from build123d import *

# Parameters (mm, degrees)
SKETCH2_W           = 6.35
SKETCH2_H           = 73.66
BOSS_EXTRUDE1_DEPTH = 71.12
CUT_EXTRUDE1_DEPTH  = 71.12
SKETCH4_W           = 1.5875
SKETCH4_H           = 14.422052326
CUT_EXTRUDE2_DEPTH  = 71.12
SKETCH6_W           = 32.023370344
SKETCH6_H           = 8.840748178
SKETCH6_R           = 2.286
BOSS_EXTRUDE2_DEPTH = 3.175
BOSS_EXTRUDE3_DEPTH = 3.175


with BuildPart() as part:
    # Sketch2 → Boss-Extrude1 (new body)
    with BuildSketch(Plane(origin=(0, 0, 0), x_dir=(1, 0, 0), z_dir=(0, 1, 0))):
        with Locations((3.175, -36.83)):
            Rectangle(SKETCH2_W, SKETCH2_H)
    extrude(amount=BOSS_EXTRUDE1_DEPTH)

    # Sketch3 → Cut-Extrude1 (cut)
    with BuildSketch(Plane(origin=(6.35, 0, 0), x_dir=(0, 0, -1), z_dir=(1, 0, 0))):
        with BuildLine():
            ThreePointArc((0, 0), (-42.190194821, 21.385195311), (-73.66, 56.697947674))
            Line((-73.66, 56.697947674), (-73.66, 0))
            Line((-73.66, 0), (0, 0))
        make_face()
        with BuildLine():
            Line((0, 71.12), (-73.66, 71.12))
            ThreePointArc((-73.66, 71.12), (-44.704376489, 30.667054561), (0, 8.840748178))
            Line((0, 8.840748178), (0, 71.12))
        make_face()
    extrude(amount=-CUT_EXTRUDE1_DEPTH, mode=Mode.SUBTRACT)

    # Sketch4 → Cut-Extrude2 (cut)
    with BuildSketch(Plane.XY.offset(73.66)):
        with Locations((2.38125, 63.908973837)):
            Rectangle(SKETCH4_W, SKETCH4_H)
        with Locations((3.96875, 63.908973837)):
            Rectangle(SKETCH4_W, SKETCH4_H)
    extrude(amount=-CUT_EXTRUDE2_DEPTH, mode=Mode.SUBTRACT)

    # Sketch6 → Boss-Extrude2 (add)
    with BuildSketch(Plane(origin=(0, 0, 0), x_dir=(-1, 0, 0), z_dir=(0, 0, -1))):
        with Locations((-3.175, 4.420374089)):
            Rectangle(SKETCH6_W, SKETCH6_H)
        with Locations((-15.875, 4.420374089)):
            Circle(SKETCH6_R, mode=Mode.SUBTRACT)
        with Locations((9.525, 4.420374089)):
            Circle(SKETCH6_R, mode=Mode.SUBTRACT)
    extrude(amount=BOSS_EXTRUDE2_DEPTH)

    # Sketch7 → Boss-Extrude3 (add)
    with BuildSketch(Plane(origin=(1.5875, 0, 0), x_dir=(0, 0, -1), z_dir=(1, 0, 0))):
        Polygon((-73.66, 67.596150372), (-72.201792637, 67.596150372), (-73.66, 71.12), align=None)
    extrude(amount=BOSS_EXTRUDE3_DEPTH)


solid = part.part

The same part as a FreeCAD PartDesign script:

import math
import FreeCAD as App
import Part
import Sketcher

V = App.Vector
Q = App.Units.Quantity


def add_polygon(sketch, points):
    """Adds a closed chain of lines whose ends are joined by coincident constraints."""
    first, n = sketch.GeometryCount, len(points)
    for a, b in zip(points, points[1:] + points[:1]):
        sketch.addGeometry(Part.LineSegment(App.Vector(*a, 0), App.Vector(*b, 0)), False)
    for i in range(n):
        sketch.addConstraint(Sketcher.Constraint("Coincident", first + i, 2, first + (i + 1) % n, 1))

doc = App.newDocument("Part")
body = doc.addObject("PartDesign::Body", "Body")

sketch1 = body.newObject("Sketcher::SketchObject", "Sketch")
sketch1.AttachmentSupport = (doc.getObject("XZ_Plane"), [""])
sketch1.MapMode = "FlatFace"
add_polygon(sketch1, [(0, 0), (0, 73.66), (6.35, 73.66), (6.35, 0)])
sketch1.addConstraint([
    Sketcher.Constraint("Vertical", 0),
    Sketcher.Constraint("Horizontal", 1),
    Sketcher.Constraint("Vertical", 2),
    Sketcher.Constraint("Horizontal", 3),
    Sketcher.Constraint("Coincident", 3, 2, -1, 1),
    Sketcher.Constraint("DistanceY", 0, 1, 0, 2, Q("2.9 in")),
    Sketcher.Constraint("DistanceX", 1, 1, 1, 2, Q("0.25 in")),
])
pad1 = body.newObject("PartDesign::Pad", "Pad")
pad1.Profile = sketch1
pad1.Length = Q("2.8 in")
pad1.Reversed = True

sketch2 = body.newObject("Sketcher::SketchObject", "Sketch001")
sketch2.AttachmentSupport = (doc.getObject("YZ_Plane"), [""])
sketch2.MapMode = "FlatFace"
sketch2.AttachmentOffset = App.Placement(V(0, 0, 0.25 * 25.4), App.Rotation())
sketch2.addGeometry([
    Part.ArcOfCircle(Part.Circle(V(122.260252, -35.455864, 0), V(0, 0, 1), 127.297634), math.radians(120.999567), math.radians(163.827672)),
    Part.LineSegment(V(56.697948, 73.66, 0), V(0, 73.66, 0)),
    Part.LineSegment(V(0, 73.66, 0), V(0, 0, 0)),
    Part.LineSegment(V(71.12, 0, 0), V(71.12, 73.66, 0)),
    Part.ArcOfCircle(Part.Circle(V(108.146777, -20.804436, 0), V(0, 0, 1), 101.461874), math.radians(111.403454), math.radians(168.167759)),
    Part.LineSegment(V(8.840748, 0, 0), V(71.12, 0, 0)),
], False)
sketch2.addConstraint([
    Sketcher.Constraint("Coincident", 0, 1, 1, 1),
    Sketcher.Constraint("Coincident", 1, 2, 2, 1),
    Sketcher.Constraint("Coincident", 2, 2, 0, 2),
    Sketcher.Constraint("Coincident", 3, 2, 4, 1),
    Sketcher.Constraint("Coincident", 4, 2, 5, 1),
    Sketcher.Constraint("Coincident", 5, 2, 3, 1),
    Sketcher.Constraint("Horizontal", 1),
    Sketcher.Constraint("Vertical", 2),
    Sketcher.Constraint("Vertical", 3),
    Sketcher.Constraint("Horizontal", 5),
    Sketcher.Constraint("Coincident", 2, 2, -1, 1),
    Sketcher.Constraint("PointOnObject", 4, 2, -1),
    Sketcher.Constraint("Horizontal", 1, 2, 3, 2),
    Sketcher.Constraint("DistanceY", 2, 2, 2, 1, Q("2.9 in")),
    Sketcher.Constraint("DistanceX", -1, 1, 3, 2, Q("2.8 in")),
    Sketcher.Constraint("DistanceY", 0, 3, -1, 1, Q("1.3959002 in")),
    Sketcher.Constraint("Radius", 0, Q("127.297634 mm")),
    Sketcher.Constraint("Radius", 4, Q("101.461874 mm")),
    Sketcher.Constraint("DistanceX", 5, 1, 5, 2, Q("62.279252 mm")),
])
pocket1 = body.newObject("PartDesign::Pocket", "Pocket")
pocket1.Profile = sketch2
pocket1.Length = Q("2.8 in")

sketch3 = body.newObject("Sketcher::SketchObject", "Sketch002")
sketch3.AttachmentSupport = (doc.getObject("XY_Plane"), [""])
sketch3.MapMode = "FlatFace"
sketch3.AttachmentOffset = App.Placement(V(0, 0, 2.9 * 25.4), App.Rotation())
add_polygon(sketch3, [(1.5875, 71.12), (1.5875, 56.697948), (4.7625, 56.697948), (4.7625, 71.12)])
sketch3.addConstraint([
    Sketcher.Constraint("Vertical", 0),
    Sketcher.Constraint("Horizontal", 1),
    Sketcher.Constraint("Vertical", 2),
    Sketcher.Constraint("Horizontal", 3),
    Sketcher.Constraint("DistanceY", -1, 1, 2, 2, Q("2.8 in")),
    Sketcher.Constraint("DistanceX", 1, 1, 1, 2, Q("0.125 in")),
    Sketcher.Constraint("DistanceX", -1, 1, 0, 2, Q("0.0625 in")),
    Sketcher.Constraint("DistanceY", 0, 2, 0, 1, Q("14.422052 mm")),
])
pocket2 = body.newObject("PartDesign::Pocket", "Pocket001")
pocket2.Profile = sketch3
pocket2.Length = Q("2.8 in")

sketch4 = body.newObject("Sketcher::SketchObject", "Sketch003")
sketch4.AttachmentSupport = (doc.getObject("XY_Plane"), [""])
sketch4.MapMode = "FlatFace"
add_polygon(sketch4, [(19.186685, 8.840748), (19.186685, 0), (-12.836685, 0), (-12.836685, 8.840748)])
sketch4.addGeometry(Part.Circle(V(15.875, 4.420374, 0), V(0, 0, 1), 2.286), False)
sketch4.addGeometry(Part.Circle(V(-9.525, 4.420374, 0), V(0, 0, 1), 2.286), False)
sketch4.addConstraint([
    Sketcher.Constraint("Vertical", 0),
    Sketcher.Constraint("Horizontal", 1),
    Sketcher.Constraint("Vertical", 2),
    Sketcher.Constraint("Horizontal", 3),
    Sketcher.Constraint("Equal", 4, 5),
    Sketcher.Constraint("PointOnObject", 0, 2, -1),
    Sketcher.Constraint("Horizontal", 4, 3, 5, 3),
    Sketcher.Constraint("Diameter", 4, Q("0.18 in")),
    Sketcher.Constraint("DistanceX", 5, 3, 4, 3, Q("1 in")),
    Sketcher.Constraint("DistanceX", -1, 1, 4, 3, Q("0.625 in")),
    Sketcher.Constraint("DistanceX", 1, 2, 1, 1, Q("32.02337 mm")),
    Sketcher.Constraint("DistanceY", 0, 2, 0, 1, Q("8.840748 mm")),
    Sketcher.Constraint("DistanceY", -1, 1, 4, 3, Q("4.420374 mm")),
    Sketcher.Constraint("DistanceX", -1, 1, 0, 2, Q("19.186685 mm")),
])
pad2 = body.newObject("PartDesign::Pad", "Pad001")
pad2.Profile = sketch4
pad2.Length = Q("0.125 in")
pad2.Reversed = True

sketch5 = body.newObject("Sketcher::SketchObject", "Sketch004")
sketch5.AttachmentSupport = (doc.getObject("YZ_Plane"), [""])
sketch5.MapMode = "FlatFace"
sketch5.AttachmentOffset = App.Placement(V(0, 0, 0.0625 * 25.4), App.Rotation())
add_polygon(sketch5, [(67.59615, 73.66), (67.59615, 72.201793), (71.12, 73.66)])
sketch5.addConstraint([
    Sketcher.Constraint("Vertical", 0),
    Sketcher.Constraint("Horizontal", 2),
    Sketcher.Constraint("DistanceX", -1, 1, 1, 2, Q("2.8 in")),
    Sketcher.Constraint("DistanceY", -1, 1, 1, 2, Q("2.9 in")),
    Sketcher.Constraint("DistanceX", 2, 2, 2, 1, Q("3.52385 mm")),
    Sketcher.Constraint("DistanceY", 0, 2, 0, 1, Q("1.458207 mm")),
])
pad3 = body.newObject("PartDesign::Pad", "Pad002")
pad3.Profile = sketch5
pad3.Length = Q("0.125 in")

doc.recompute()
